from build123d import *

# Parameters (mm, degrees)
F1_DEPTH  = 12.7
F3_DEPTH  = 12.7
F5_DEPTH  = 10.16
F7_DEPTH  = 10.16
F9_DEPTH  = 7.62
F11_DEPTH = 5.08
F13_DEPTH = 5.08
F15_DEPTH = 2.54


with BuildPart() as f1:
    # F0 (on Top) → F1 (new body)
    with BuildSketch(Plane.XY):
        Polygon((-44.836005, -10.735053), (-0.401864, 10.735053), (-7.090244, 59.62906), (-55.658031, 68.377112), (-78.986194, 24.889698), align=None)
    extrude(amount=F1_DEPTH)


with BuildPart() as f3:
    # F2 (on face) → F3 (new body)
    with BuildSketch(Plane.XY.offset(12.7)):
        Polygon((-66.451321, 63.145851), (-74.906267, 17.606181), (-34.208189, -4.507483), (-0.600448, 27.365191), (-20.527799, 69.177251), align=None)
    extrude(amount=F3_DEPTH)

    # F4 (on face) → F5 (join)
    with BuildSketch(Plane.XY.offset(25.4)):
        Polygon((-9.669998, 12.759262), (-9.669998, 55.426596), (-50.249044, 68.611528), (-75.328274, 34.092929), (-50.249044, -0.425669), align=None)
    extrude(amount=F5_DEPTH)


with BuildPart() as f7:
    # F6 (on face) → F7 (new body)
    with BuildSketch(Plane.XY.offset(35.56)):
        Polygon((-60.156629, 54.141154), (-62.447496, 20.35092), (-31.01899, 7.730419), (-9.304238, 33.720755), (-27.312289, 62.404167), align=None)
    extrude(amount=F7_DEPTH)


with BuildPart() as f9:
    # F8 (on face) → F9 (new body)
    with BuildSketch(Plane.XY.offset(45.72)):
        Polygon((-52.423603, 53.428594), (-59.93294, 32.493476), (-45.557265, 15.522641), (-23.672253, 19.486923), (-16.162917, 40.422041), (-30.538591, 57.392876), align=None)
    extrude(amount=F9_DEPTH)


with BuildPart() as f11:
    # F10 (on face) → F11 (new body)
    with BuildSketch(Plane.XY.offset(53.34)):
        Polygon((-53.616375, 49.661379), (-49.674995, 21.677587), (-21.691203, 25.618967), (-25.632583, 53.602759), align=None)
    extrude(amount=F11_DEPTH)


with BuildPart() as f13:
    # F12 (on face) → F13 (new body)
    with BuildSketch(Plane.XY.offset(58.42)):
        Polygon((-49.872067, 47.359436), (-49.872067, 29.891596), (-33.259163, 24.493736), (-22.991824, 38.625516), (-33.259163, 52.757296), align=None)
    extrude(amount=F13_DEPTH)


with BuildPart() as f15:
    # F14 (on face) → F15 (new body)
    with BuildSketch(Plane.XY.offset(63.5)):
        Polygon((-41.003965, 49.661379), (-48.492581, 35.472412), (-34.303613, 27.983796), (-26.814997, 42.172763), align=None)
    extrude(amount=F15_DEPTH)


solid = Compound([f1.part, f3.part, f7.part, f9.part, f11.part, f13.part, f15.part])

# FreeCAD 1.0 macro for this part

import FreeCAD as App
import Part
import Sketcher
from FreeCAD import Vector
Q = App.Units.Quantity

doc = App.newDocument("Part")
body = doc.addObject("PartDesign::Body", "Body")

# Sketch on XY plane
sketch1 = body.newObject("Sketcher::SketchObject", "Sketch")
sketch1.AttachmentSupport = (doc.getObject("XY_Plane"), [""])
sketch1.MapMode = "FlatFace"
sketch1.addGeometry([
    Part.LineSegment(Vector(-45, -11, 0), Vector(0, 11, 0)),  # 0
    Part.LineSegment(Vector(0, 11, 0), Vector(-7, 60, 0)),  # 1
    Part.LineSegment(Vector(-7, 60, 0), Vector(-56, 68, 0)),  # 2
    Part.LineSegment(Vector(-56, 68, 0), Vector(-79, 25, 0)),  # 3
    Part.LineSegment(Vector(-79, 25, 0), Vector(-45, -11, 0)),  # 4
], False)
sketch1.addConstraint([
    Sketcher.Constraint("Coincident", 0, 2, 1, 1),
    Sketcher.Constraint("Coincident", 1, 2, 2, 1),
    Sketcher.Constraint("Coincident", 2, 2, 3, 1),
    Sketcher.Constraint("Coincident", 3, 2, 4, 1),
    Sketcher.Constraint("Coincident", 4, 2, 0, 1),
    Sketcher.Constraint("Equal", 0, 1),
    Sketcher.Constraint("Equal", 1, 2),
    Sketcher.Constraint("Equal", 2, 3),
    Sketcher.Constraint("Equal", 3, 4),
    Sketcher.Constraint("Distance", 0, Q("49.34935 mm")),
    Sketcher.Constraint("DistanceY", -1, 1, 1, 2, Q("59.62906 mm")),
    Sketcher.Constraint("DistanceX", 2, 2, -1, 1, Q("55.658031 mm")),
    Sketcher.Constraint("DistanceY", -1, 1, 2, 2, Q("68.377112 mm")),
    Sketcher.Constraint("DistanceX", 1, 2, 0, 2, Q("6.68838 mm")),
    Sketcher.Constraint("DistanceX", 3, 2, 0, 2, Q("78.58433 mm")),
])
pad1 = body.newObject("PartDesign::Pad", "Pad")
pad1.Profile = sketch1
pad1.Length = Q("0.5 in")
body2 = doc.addObject("PartDesign::Body", "Body001")

# Sketch on XY plane
sketch2 = body2.newObject("Sketcher::SketchObject", "Sketch001")
sketch2.AttachmentSupport = (doc.getObject("XY_Plane001"), [""])
sketch2.MapMode = "FlatFace"
sketch2.AttachmentOffset = App.Placement(Vector(0, 0, 0.5 * 25.4), App.Rotation())
sketch2.addGeometry([
    Part.LineSegment(Vector(-66, 63, 0), Vector(-75, 18, 0)),  # 0
    Part.LineSegment(Vector(-75, 18, 0), Vector(-34, -5, 0)),  # 1
    Part.LineSegment(Vector(-34, -5, 0), Vector(-1, 27, 0)),  # 2
    Part.LineSegment(Vector(-1, 27, 0), Vector(-21, 69, 0)),  # 3
    Part.LineSegment(Vector(-21, 69, 0), Vector(-66, 63, 0)),  # 4
], False)
sketch2.addConstraint([
    Sketcher.Constraint("Coincident", 0, 2, 1, 1),
    Sketcher.Constraint("Coincident", 1, 2, 2, 1),
    Sketcher.Constraint("Coincident", 2, 2, 3, 1),
    Sketcher.Constraint("Coincident", 3, 2, 4, 1),
    Sketcher.Constraint("Coincident", 4, 2, 0, 1),
    Sketcher.Constraint("Equal", 0, 1),
    Sketcher.Constraint("Equal", 1, 2),
    Sketcher.Constraint("Equal", 2, 3),
    Sketcher.Constraint("Equal", 3, 4),
    Sketcher.Constraint("Distance", 1, Q("46.317898 mm")),
    Sketcher.Constraint("DistanceX", 3, 2, -1, 1, Q("20.527799 mm")),
    Sketcher.Constraint("DistanceY", 4, 2, 3, 2, Q("6.0314 mm")),
    Sketcher.Constraint("DistanceY", -1, 1, 0, 2, Q("17.606181 mm")),
    Sketcher.Constraint("DistanceX", 1, 2, -1, 1, Q("34.208189 mm")),
    Sketcher.Constraint("DistanceY", -1, 1, 2, 2, Q("27.365191 mm")),
])
pad2 = body2.newObject("PartDesign::Pad", "Pad001")
pad2.Profile = sketch2
pad2.Length = Q("0.5 in")

# Sketch on XY plane
sketch3 = body2.newObject("Sketcher::SketchObject", "Sketch002")
sketch3.AttachmentSupport = (doc.getObject("XY_Plane001"), [""])
sketch3.MapMode = "FlatFace"
sketch3.AttachmentOffset = App.Placement(Vector(0, 0, 1 * 25.4), App.Rotation())
sketch3.addGeometry([
    Part.LineSegment(Vector(-10, 13, 0), Vector(-10, 55, 0)),  # 0
    Part.LineSegment(Vector(-10, 55, 0), Vector(-50, 69, 0)),  # 1
    Part.LineSegment(Vector(-50, 69, 0), Vector(-75, 34, 0)),  # 2
    Part.LineSegment(Vector(-75, 34, 0), Vector(-50, 0, 0)),  # 3
    Part.LineSegment(Vector(-50, 0, 0), Vector(-10, 13, 0)),  # 4
], False)
sketch3.addConstraint([
    Sketcher.Constraint("Coincident", 0, 2, 1, 1),
    Sketcher.Constraint("Coincident", 1, 2, 2, 1),
    Sketcher.Constraint("Coincident", 2, 2, 3, 1),
    Sketcher.Constraint("Coincident", 3, 2, 4, 1),
    Sketcher.Constraint("Coincident", 4, 2, 0, 1),
    Sketcher.Constraint("Vertical", 0),
    Sketcher.Constraint("Vertical", 1, 2, 3, 2),
    Sketcher.Constraint("Equal", 1, 2),
    Sketcher.Constraint("Equal", 2, 3),
    Sketcher.Constraint("Equal", 3, 4),
    Sketcher.Constraint("Angle", 1, Q("161.999999 deg")),
    Sketcher.Constraint("Angle", 2, Q("-126 deg")),
    Sketcher.Constraint("DistanceY", 2, 2, 1, 2, Q("1.359 in")),
    Sketcher.Constraint("DistanceY", -1, 1, 1, 2, Q("68.611528 mm")),
    Sketcher.Constraint("DistanceX", 0, 2, -1, 1, Q("9.669998 mm")),
])
pad3 = body2.newObject("PartDesign::Pad", "Pad002")
pad3.Profile = sketch3
pad3.Length = Q("0.4 in")
body3 = doc.addObject("PartDesign::Body", "Body002")

# Sketch on XY plane
sketch4 = body3.newObject("Sketcher::SketchObject", "Sketch003")
sketch4.AttachmentSupport = (doc.getObject("XY_Plane002"), [""])
sketch4.MapMode = "FlatFace"
sketch4.AttachmentOffset = App.Placement(Vector(0, 0, 1.4 * 25.4), App.Rotation())
sketch4.addGeometry([
    Part.LineSegment(Vector(-60, 54, 0), Vector(-62, 20, 0)),  # 0
    Part.LineSegment(Vector(-62, 20, 0), Vector(-31, 8, 0)),  # 1
    Part.LineSegment(Vector(-31, 8, 0), Vector(-9, 34, 0)),  # 2
    Part.LineSegment(Vector(-9, 34, 0), Vector(-27, 62, 0)),  # 3
    Part.LineSegment(Vector(-27, 62, 0), Vector(-60, 54, 0)),  # 4
], False)
sketch4.addConstraint([
    Sketcher.Constraint("Coincident", 0, 2, 1, 1),
    Sketcher.Constraint("Coincident", 1, 2, 2, 1),
    Sketcher.Constraint("Coincident", 2, 2, 3, 1),
    Sketcher.Constraint("Coincident", 3, 2, 4, 1),
    Sketcher.Constraint("Coincident", 4, 2, 0, 1),
    Sketcher.Constraint("Equal", 0, 1),
    Sketcher.Constraint("Equal", 1, 2),
    Sketcher.Constraint("Equal", 2, 3),
    Sketcher.Constraint("Equal", 3, 4),
    Sketcher.Constraint("Distance", 0, Q("33.867802 mm")),
    Sketcher.Constraint("DistanceY", 1, 2, 0, 2, Q("12.620501 mm")),
    Sketcher.Constraint("DistanceX", 1, 2, 3, 2, Q("3.706701 mm")),
    Sketcher.Constraint("DistanceY", 2, 2, 4, 2, Q("20.420399 mm")),
    Sketcher.Constraint("DistanceY", -1, 1, 0, 2, Q("20.35092 mm")),
    Sketcher.Constraint("DistanceX", 1, 2, -1, 1, Q("31.01899 mm")),
])
pad4 = body3.newObject("PartDesign::Pad", "Pad003")
pad4.Profile = sketch4
pad4.Length = Q("0.4 in")
body4 = doc.addObject("PartDesign::Body", "Body003")

# Sketch on XY plane
sketch5 = body4.newObject("Sketcher::SketchObject", "Sketch004")
sketch5.AttachmentSupport = (doc.getObject("XY_Plane003"), [""])
sketch5.MapMode = "FlatFace"
sketch5.AttachmentOffset = App.Placement(Vector(0, 0, 1.8 * 25.4), App.Rotation())
sketch5.addGeometry([
    Part.LineSegment(Vector(-52, 53, 0), Vector(-60, 32, 0)),  # 0
    Part.LineSegment(Vector(-60, 32, 0), Vector(-46, 16, 0)),  # 1
    Part.LineSegment(Vector(-46, 16, 0), Vector(-24, 19, 0)),  # 2
    Part.LineSegment(Vector(-24, 19, 0), Vector(-16, 40, 0)),  # 3
    Part.LineSegment(Vector(-16, 40, 0), Vector(-31, 57, 0)),  # 4
    Part.LineSegment(Vector(-31, 57, 0), Vector(-52, 53, 0)),  # 5
], False)
sketch5.addConstraint([
    Sketcher.Constraint("Coincident", 0, 2, 1, 1),
    Sketcher.Constraint("Coincident", 1, 2, 2, 1),
    Sketcher.Constraint("Coincident", 2, 2, 3, 1),
    Sketcher.Constraint("Coincident", 3, 2, 4, 1),
    Sketcher.Constraint("Coincident", 4, 2, 5, 1),
    Sketcher.Constraint("Coincident", 5, 2, 0, 1),
    Sketcher.Constraint("Parallel", 0, 3),
    Sketcher.Constraint("Parallel", 1, 4),
    Sketcher.Constraint("Parallel", 2, 5),
    Sketcher.Constraint("Equal", 0, 1),
    Sketcher.Constraint("Equal", 1, 2),
    Sketcher.Constraint("Equal", 2, 3),
    Sketcher.Constraint("DistanceY", 1, 2, 3, 2, Q("24.8994 mm")),
    Sketcher.Constraint("Distance", 1, Q("22.241162 mm")),
    Sketcher.Constraint("DistanceX", 0, 2, -1, 1, Q("59.93294 mm")),
    Sketcher.Constraint("DistanceY", -1, 1, 1, 2, Q("15.522641 mm")),
    Sketcher.Constraint("DistanceX", 4, 2, -1, 1, Q("30.538591 mm")),
    Sketcher.Constraint("DistanceX", 5, 2, 2, 2, Q("28.75135 mm")),
])
pad5 = body4.newObject("PartDesign::Pad", "Pad004")
pad5.Profile = sketch5
pad5.Length = Q("0.3 in")
body5 = doc.addObject("PartDesign::Body", "Body004")

# Sketch on XY plane
sketch6 = body5.newObject("Sketcher::SketchObject", "Sketch005")
sketch6.AttachmentSupport = (doc.getObject("XY_Plane004"), [""])
sketch6.MapMode = "FlatFace"
sketch6.AttachmentOffset = App.Placement(Vector(0, 0, 2.1 * 25.4), App.Rotation())
sketch6.addGeometry([
    Part.LineSegment(Vector(-54, 50, 0), Vector(-50, 22, 0)),
    Part.LineSegment(Vector(-50, 22, 0), Vector(-22, 26, 0)),
    Part.LineSegment(Vector(-22, 26, 0), Vector(-26, 54, 0)),
    Part.LineSegment(Vector(-26, 54, 0), Vector(-54, 50, 0)),
], False)
sketch6.addConstraint([
    Sketcher.Constraint("Coincident", 0, 2, 1, 1),
    Sketcher.Constraint("Coincident", 1, 2, 2, 1),
    Sketcher.Constraint("Coincident", 2, 2, 3, 1),
    Sketcher.Constraint("Coincident", 3, 2, 0, 1),
    Sketcher.Constraint("Perpendicular", 0, 1),
    Sketcher.Constraint("Perpendicular", 1, 2),
    Sketcher.Constraint("Perpendicular", 2, 3),
    Sketcher.Constraint("Equal", 0, 1),
    Sketcher.Constraint("Distance", 0, Q("28.259991 mm")),
    Sketcher.Constraint("DistanceY", -1, 1, 2, 2, Q("53.602759 mm")),
    Sketcher.Constraint("DistanceY", -1, 1, 3, 2, Q("49.661379 mm")),
    Sketcher.Constraint("DistanceX", 0, 2, -1, 1, Q("49.674995 mm")),
])
pad6 = body5.newObject("PartDesign::Pad", "Pad005")
pad6.Profile = sketch6
pad6.Length = Q("0.2 in")
body6 = doc.addObject("PartDesign::Body", "Body005")

# Sketch on XY plane
sketch7 = body6.newObject("Sketcher::SketchObject", "Sketch006")
sketch7.AttachmentSupport = (doc.getObject("XY_Plane005"), [""])
sketch7.MapMode = "FlatFace"
sketch7.AttachmentOffset = App.Placement(Vector(0, 0, 2.3 * 25.4), App.Rotation())
sketch7.addGeometry([
    Part.LineSegment(Vector(-50, 47, 0), Vector(-50, 30, 0)),  # 0
    Part.LineSegment(Vector(-50, 30, 0), Vector(-33, 24, 0)),  # 1
    Part.LineSegment(Vector(-33, 24, 0), Vector(-23, 39, 0)),  # 2
    Part.LineSegment(Vector(-23, 39, 0), Vector(-33, 53, 0)),  # 3
    Part.LineSegment(Vector(-33, 53, 0), Vector(-50, 47, 0)),  # 4
], False)
sketch7.addConstraint([
    Sketcher.Constraint("Coincident", 0, 2, 1, 1),
    Sketcher.Constraint("Coincident", 1, 2, 2, 1),
    Sketcher.Constraint("Coincident", 2, 2, 3, 1),
    Sketcher.Constraint("Coincident", 3, 2, 4, 1),
    Sketcher.Constraint("Coincident", 4, 2, 0, 1),
    Sketcher.Constraint("Vertical", 0),
    Sketcher.Constraint("Vertical", 1, 2, 3, 2),
    Sketcher.Constraint("Equal", 1, 2),
    Sketcher.Constraint("Equal", 2, 3),
    Sketcher.Constraint("Equal", 3, 4),
    Sketcher.Constraint("Angle", 1, Q("-18.000001 deg")),
    Sketcher.Constraint("Angle", 2, Q("54 deg")),
    Sketcher.Constraint("DistanceY", 0, 2, 0, 1, Q("17.46784 mm")),
    Sketcher.Constraint("DistanceX", 0, 2, -1, 1, Q("49.872067 mm")),
    Sketcher.Constraint("DistanceY", -1, 1, 0, 2, Q("29.891596 mm")),
])
pad7 = body6.newObject("PartDesign::Pad", "Pad006")
pad7.Profile = sketch7
pad7.Length = Q("0.2 in")
body7 = doc.addObject("PartDesign::Body", "Body006")

# Sketch on XY plane
sketch8 = body7.newObject("Sketcher::SketchObject", "Sketch007")
sketch8.AttachmentSupport = (doc.getObject("XY_Plane006"), [""])
sketch8.MapMode = "FlatFace"
sketch8.AttachmentOffset = App.Placement(Vector(0, 0, 2.5 * 25.4), App.Rotation())
sketch8.addGeometry([
    Part.LineSegment(Vector(-41, 50, 0), Vector(-48, 35, 0)),
    Part.LineSegment(Vector(-48, 35, 0), Vector(-34, 28, 0)),
    Part.LineSegment(Vector(-34, 28, 0), Vector(-27, 42, 0)),
    Part.LineSegment(Vector(-27, 42, 0), Vector(-41, 50, 0)),
], False)
sketch8.addConstraint([
    Sketcher.Constraint("Coincident", 0, 2, 1, 1),
    Sketcher.Constraint("Coincident", 1, 2, 2, 1),
    Sketcher.Constraint("Coincident", 2, 2, 3, 1),
    Sketcher.Constraint("Coincident", 3, 2, 0, 1),
    Sketcher.Constraint("Perpendicular", 0, 1),
    Sketcher.Constraint("Perpendicular", 1, 2),
    Sketcher.Constraint("Perpendicular", 2, 3),
    Sketcher.Constraint("Equal", 0, 1),
    Sketcher.Constraint("DistanceX", 0, 2, -1, 1, Q("48.492581 mm")),
    Sketcher.Constraint("DistanceY", -1, 1, 0, 2, Q("35.472412 mm")),
    Sketcher.Constraint("DistanceY", -1, 1, 3, 2, Q("49.661379 mm")),
    Sketcher.Constraint("DistanceY", 0, 2, 2, 2, Q("6.700351 mm")),
])
pad8 = body7.newObject("PartDesign::Pad", "Pad007")
pad8.Profile = sketch8
pad8.Length = Q("0.1 in")

doc.recompute()
